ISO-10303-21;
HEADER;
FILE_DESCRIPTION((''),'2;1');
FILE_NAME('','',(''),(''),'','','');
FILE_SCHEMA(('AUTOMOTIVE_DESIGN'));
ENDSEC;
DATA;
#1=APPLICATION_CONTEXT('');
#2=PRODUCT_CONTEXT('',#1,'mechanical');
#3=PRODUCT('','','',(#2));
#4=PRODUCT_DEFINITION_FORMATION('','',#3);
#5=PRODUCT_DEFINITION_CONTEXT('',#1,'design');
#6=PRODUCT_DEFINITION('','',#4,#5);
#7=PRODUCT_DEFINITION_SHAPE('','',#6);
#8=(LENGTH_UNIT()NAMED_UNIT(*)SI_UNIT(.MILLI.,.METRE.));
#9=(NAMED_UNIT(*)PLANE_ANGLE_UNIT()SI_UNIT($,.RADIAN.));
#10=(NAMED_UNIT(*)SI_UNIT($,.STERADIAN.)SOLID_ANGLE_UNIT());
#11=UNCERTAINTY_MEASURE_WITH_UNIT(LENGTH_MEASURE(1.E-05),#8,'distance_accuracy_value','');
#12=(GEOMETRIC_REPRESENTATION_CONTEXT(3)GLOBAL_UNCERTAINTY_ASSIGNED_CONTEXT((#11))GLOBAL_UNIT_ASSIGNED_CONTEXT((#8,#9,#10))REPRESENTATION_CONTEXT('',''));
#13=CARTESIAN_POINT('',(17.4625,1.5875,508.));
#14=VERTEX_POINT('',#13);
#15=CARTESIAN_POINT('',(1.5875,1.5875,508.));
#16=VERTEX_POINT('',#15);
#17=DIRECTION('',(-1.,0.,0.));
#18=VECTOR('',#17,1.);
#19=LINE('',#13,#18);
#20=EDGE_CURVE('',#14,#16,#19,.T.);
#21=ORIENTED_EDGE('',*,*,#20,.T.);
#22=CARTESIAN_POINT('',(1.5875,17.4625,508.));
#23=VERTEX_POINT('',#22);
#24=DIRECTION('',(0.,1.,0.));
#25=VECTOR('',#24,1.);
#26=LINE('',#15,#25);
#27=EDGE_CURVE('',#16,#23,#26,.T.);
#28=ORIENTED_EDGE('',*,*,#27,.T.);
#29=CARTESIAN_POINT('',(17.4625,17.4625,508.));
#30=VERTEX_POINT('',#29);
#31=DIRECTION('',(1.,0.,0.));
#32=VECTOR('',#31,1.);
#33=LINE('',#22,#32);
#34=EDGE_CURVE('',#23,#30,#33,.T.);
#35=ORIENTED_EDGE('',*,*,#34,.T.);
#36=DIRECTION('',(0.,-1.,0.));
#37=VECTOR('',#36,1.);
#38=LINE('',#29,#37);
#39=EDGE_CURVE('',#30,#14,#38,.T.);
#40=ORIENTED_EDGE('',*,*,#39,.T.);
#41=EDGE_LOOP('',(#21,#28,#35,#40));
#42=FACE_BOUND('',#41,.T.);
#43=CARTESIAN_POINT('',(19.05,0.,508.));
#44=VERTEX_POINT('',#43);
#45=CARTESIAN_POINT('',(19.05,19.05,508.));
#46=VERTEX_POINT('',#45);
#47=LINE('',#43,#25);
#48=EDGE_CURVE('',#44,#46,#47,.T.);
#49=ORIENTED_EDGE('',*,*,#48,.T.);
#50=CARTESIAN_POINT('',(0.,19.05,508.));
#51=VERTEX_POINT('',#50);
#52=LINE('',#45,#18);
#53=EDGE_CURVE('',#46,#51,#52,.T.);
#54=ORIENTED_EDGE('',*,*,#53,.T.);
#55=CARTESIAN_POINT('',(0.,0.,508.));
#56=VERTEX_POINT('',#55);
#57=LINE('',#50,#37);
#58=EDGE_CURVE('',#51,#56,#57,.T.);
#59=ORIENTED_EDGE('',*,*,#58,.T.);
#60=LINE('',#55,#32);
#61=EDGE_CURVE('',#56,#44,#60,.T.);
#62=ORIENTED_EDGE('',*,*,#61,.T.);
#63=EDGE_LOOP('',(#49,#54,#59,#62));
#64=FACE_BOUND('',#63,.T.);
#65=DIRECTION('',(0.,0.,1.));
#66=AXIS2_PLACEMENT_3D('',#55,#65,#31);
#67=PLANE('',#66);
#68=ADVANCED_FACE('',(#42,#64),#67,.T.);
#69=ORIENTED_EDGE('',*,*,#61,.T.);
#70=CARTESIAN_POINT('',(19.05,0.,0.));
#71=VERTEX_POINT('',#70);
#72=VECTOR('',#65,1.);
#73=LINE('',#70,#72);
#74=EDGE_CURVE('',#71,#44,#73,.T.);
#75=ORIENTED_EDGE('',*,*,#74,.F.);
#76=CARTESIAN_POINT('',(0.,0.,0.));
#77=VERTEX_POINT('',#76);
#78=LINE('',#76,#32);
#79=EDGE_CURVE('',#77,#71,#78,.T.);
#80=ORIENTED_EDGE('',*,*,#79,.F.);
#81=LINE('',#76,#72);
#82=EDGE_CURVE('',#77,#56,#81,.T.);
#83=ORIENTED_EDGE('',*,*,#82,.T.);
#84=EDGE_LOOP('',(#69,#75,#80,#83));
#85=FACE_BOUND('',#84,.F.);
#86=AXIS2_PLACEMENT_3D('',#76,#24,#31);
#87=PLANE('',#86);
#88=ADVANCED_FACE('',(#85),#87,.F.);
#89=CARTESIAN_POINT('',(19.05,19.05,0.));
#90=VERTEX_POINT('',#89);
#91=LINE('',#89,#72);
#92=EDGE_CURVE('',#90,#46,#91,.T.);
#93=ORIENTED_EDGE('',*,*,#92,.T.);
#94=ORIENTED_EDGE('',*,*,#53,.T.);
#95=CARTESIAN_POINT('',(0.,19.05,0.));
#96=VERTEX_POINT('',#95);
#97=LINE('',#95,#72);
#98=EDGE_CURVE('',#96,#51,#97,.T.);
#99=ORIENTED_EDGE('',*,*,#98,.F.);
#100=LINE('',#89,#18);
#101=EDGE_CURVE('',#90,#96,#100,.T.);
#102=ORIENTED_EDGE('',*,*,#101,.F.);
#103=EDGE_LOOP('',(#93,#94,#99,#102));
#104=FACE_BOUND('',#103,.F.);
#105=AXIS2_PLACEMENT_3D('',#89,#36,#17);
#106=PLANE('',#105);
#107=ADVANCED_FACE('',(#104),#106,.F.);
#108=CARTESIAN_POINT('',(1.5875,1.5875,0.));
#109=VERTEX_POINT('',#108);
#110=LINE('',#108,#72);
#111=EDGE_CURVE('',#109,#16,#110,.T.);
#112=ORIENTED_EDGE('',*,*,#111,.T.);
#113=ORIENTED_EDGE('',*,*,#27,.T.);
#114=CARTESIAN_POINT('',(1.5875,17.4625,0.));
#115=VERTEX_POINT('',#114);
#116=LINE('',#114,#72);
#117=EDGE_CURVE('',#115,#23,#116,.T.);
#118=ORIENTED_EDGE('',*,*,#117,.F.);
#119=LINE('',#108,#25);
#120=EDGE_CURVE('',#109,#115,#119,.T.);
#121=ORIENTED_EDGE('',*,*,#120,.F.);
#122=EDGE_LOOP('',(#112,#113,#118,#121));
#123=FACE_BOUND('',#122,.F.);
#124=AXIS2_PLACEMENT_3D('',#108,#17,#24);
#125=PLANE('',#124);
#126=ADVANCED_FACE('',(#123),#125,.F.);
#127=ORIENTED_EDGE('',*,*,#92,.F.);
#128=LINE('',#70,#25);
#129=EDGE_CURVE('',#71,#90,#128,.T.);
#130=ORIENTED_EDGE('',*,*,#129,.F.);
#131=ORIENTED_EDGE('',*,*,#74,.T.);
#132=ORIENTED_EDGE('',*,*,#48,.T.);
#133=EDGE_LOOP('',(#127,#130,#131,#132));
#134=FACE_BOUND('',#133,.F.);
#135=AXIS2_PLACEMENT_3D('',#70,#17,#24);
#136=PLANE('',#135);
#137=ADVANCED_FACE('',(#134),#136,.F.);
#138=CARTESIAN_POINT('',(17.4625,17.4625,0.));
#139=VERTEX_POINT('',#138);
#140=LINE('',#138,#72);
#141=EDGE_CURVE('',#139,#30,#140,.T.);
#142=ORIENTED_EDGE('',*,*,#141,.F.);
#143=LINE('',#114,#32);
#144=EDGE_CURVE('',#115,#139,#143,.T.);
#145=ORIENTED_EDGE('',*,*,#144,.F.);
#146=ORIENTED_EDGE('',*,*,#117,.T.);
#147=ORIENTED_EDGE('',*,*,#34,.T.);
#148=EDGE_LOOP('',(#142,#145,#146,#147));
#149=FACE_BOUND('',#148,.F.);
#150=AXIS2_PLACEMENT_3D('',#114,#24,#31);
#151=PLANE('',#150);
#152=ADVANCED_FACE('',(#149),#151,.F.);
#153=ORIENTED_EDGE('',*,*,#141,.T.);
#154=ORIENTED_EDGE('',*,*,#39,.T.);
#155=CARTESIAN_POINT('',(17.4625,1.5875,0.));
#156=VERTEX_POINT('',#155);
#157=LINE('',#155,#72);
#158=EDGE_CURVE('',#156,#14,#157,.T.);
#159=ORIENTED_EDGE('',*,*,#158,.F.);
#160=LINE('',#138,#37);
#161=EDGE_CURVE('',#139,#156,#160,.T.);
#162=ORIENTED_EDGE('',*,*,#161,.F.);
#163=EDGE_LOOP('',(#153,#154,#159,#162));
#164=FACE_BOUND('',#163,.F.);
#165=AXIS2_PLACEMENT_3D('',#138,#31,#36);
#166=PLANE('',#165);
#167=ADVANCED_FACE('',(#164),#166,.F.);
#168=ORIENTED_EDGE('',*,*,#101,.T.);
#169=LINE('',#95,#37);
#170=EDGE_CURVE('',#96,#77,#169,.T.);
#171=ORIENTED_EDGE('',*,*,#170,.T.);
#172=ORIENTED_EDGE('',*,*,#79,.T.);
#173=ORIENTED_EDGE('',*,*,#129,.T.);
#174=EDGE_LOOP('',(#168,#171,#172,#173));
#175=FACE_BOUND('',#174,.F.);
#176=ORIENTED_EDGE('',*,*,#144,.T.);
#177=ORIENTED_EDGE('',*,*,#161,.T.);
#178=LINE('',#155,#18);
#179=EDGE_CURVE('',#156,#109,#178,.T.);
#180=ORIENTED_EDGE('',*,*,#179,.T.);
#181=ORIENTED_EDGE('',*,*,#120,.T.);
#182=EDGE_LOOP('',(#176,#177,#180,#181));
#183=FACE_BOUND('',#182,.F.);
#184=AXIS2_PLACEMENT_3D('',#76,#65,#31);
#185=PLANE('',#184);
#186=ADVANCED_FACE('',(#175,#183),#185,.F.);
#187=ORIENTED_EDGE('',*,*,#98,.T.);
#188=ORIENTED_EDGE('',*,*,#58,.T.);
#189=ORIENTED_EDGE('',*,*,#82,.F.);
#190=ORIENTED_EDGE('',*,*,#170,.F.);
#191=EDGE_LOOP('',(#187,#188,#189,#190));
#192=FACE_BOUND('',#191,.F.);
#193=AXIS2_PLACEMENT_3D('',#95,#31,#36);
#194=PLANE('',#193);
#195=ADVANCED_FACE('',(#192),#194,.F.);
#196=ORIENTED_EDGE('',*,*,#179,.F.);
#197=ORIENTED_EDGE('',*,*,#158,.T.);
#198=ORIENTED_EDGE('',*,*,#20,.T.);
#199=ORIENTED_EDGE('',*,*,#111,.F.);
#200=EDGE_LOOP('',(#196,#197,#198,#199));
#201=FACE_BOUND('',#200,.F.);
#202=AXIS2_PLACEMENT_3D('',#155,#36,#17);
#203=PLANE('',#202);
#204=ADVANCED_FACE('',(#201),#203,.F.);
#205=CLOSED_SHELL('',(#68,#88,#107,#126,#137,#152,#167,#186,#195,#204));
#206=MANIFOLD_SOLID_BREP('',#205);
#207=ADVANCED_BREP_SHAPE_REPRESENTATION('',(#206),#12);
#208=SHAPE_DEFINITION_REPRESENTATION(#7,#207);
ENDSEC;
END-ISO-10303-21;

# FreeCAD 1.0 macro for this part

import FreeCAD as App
import Part
import Sketcher
from FreeCAD import Vector
Q = App.Units.Quantity

doc = App.newDocument("Part")
body = doc.addObject("PartDesign::Body", "Body")

# Sketch on XY plane
sketch1 = body.newObject("Sketcher::SketchObject", "Sketch")
sketch1.AttachmentSupport = (doc.getObject("XY_Plane"), [""])
sketch1.MapMode = "FlatFace"
sketch1.addGeometry(Part.LineSegment(Vector(0, 19.05, 0), Vector(0, 0, 0)), False)
sketch1.addGeometry(Part.LineSegment(Vector(0, 0, 0), Vector(19.05, 0, 0)), False)
sketch1.addGeometry(Part.LineSegment(Vector(19.05, 0, 0), Vector(19.05, 19.05, 0)), False)
sketch1.addGeometry(Part.LineSegment(Vector(19.05, 19.05, 0), Vector(0, 19.05, 0)), False)
sketch1.addGeometry(Part.LineSegment(Vector(1.5875, 1.5875, 0), Vector(1.5875, 17.4625, 0)), False)
sketch1.addGeometry(Part.LineSegment(Vector(1.5875, 17.4625, 0), Vector(17.4625, 17.4625, 0)), False)
sketch1.addGeometry(Part.LineSegment(Vector(17.4625, 17.4625, 0), Vector(17.4625, 1.5875, 0)), False)
sketch1.addGeometry(Part.LineSegment(Vector(17.4625, 1.5875, 0), Vector(1.5875, 1.5875, 0)), False)
sketch1.addConstraint(Sketcher.Constraint("Coincident", 0, 2, 1, 1))
sketch1.addConstraint(Sketcher.Constraint("Coincident", 1, 2, 2, 1))
sketch1.addConstraint(Sketcher.Constraint("Coincident", 2, 2, 3, 1))
sketch1.addConstraint(Sketcher.Constraint("Coincident", 3, 2, 0, 1))
sketch1.addConstraint(Sketcher.Constraint("Coincident", 4, 2, 5, 1))
sketch1.addConstraint(Sketcher.Constraint("Coincident", 5, 2, 6, 1))
sketch1.addConstraint(Sketcher.Constraint("Coincident", 6, 2, 7, 1))
sketch1.addConstraint(Sketcher.Constraint("Coincident", 7, 2, 4, 1))
sketch1.addConstraint(Sketcher.Constraint("Vertical", 0))
sketch1.addConstraint(Sketcher.Constraint("Horizontal", 1))
sketch1.addConstraint(Sketcher.Constraint("Vertical", 2))
sketch1.addConstraint(Sketcher.Constraint("Horizontal", 3))
sketch1.addConstraint(Sketcher.Constraint("Vertical", 4))
sketch1.addConstraint(Sketcher.Constraint("Horizontal", 5))
sketch1.addConstraint(Sketcher.Constraint("Vertical", 6))
sketch1.addConstraint(Sketcher.Constraint("Horizontal", 7))
sketch1.addConstraint(Sketcher.Constraint("Coincident", 0, 2, -1, 1))
sketch1.addConstraint(Sketcher.Constraint("Equal", 3, 0))
sketch1.addConstraint(Sketcher.Constraint("Equal", 7, 4))
sketch1.addConstraint(Sketcher.Constraint("DistanceX", 1, 1, 1, 2, Q("0.75 in")))
sketch1.addConstraint(Sketcher.Constraint("DistanceX", -1, 1, 4, 2, Q("0.0625 in")))
sketch1.addConstraint(Sketcher.Constraint("DistanceY", -1, 1, 6, 2, Q("0.0625 in")))
sketch1.addConstraint(Sketcher.Constraint("DistanceY", 4, 2, 3, 2, Q("0.0625 in")))
pad1 = body.newObject("PartDesign::Pad", "Pad")
pad1.Profile = sketch1
pad1.Length = Q("20 in")

doc.recompute()
